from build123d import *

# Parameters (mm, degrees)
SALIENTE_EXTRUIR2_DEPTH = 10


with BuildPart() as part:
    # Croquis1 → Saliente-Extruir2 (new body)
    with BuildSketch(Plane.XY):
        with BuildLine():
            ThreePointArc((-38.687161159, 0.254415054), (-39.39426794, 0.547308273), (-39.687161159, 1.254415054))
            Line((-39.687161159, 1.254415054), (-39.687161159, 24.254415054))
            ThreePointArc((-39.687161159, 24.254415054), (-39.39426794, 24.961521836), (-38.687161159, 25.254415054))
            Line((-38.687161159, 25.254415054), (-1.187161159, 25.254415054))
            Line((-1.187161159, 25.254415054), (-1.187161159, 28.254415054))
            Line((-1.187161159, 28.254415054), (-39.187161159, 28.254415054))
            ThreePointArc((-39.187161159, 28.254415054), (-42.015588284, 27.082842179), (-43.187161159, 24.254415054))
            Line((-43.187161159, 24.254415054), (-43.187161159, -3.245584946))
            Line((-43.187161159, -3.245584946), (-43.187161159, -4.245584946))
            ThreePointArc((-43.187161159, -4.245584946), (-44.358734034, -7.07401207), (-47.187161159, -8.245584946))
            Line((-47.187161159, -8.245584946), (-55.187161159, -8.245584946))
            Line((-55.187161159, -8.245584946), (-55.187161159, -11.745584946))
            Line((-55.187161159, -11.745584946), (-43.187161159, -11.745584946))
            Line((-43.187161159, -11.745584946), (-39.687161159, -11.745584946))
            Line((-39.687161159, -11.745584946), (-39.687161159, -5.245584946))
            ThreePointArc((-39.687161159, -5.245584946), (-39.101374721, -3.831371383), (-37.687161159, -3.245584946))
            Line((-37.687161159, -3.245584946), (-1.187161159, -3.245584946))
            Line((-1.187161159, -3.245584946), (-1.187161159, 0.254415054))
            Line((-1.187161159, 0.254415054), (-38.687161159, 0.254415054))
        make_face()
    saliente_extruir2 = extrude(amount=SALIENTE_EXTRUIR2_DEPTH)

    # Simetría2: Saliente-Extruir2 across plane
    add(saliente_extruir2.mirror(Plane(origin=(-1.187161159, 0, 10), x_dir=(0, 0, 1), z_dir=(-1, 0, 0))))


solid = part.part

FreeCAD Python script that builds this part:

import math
import FreeCAD as App
import Part
import Sketcher
from FreeCAD import Vector
Q = App.Units.Quantity

doc = App.newDocument("Part")
body = doc.addObject("PartDesign::Body", "Body")

sketch1 = body.newObject("Sketcher::SketchObject", "Sketch")
sketch1.AttachmentSupport = (doc.getObject("XY_Plane"), [""])
sketch1.MapMode = "FlatFace"
sketch1.addGeometry([
    Part.ArcOfCircle(Part.Circle(Vector(-38.7, 1.3, 0), Vector(0, 0, 1), 1), math.radians(-180), math.radians(-90)),
    Part.LineSegment(Vector(-39.7, 1.3, 0), Vector(-39.7, 24.3, 0)),
    Part.ArcOfCircle(Part.Circle(Vector(-38.7, 24.3, 0), Vector(0, 0, 1), 1), math.radians(90), math.radians(180)),
    Part.LineSegment(Vector(-38.7, 25.3, 0), Vector(-1.2, 25.3, 0)),
    Part.LineSegment(Vector(-1.2, 25.3, 0), Vector(-1.2, 28.3, 0)),
    Part.LineSegment(Vector(-1.2, 28.3, 0), Vector(-39.2, 28.3, 0)),
    Part.ArcOfCircle(Part.Circle(Vector(-39.2, 24.3, 0), Vector(0, 0, 1), 4), math.radians(90), math.radians(180)),
    Part.LineSegment(Vector(-43.2, 24.3, 0), Vector(-43.2, -4.2, 0)),
    Part.ArcOfCircle(Part.Circle(Vector(-47.2, -4.2, 0), Vector(0, 0, 1), 4), math.radians(-90), math.radians(0)),
    Part.LineSegment(Vector(-47.2, -8.2, 0), Vector(-55.2, -8.2, 0)),
    Part.LineSegment(Vector(-55.2, -8.2, 0), Vector(-55.2, -11.7, 0)),
    Part.LineSegment(Vector(-55.2, -11.7, 0), Vector(-39.7, -11.7, 0)),
    Part.LineSegment(Vector(-39.7, -11.7, 0), Vector(-39.7, -5.2, 0)),
    Part.ArcOfCircle(Part.Circle(Vector(-37.7, -5.2, 0), Vector(0, 0, 1), 2), math.radians(90), math.radians(180)),
    Part.LineSegment(Vector(-37.7, -3.2, 0), Vector(-1.2, -3.2, 0)),
    Part.LineSegment(Vector(-1.2, -3.2, 0), Vector(-1.2, 0.3, 0)),
    Part.LineSegment(Vector(-1.2, 0.3, 0), Vector(-38.7, 0.3, 0)),
], False)
sketch1.addConstraint([
    Sketcher.Constraint("Tangent", 0, 1, 1, 1),
    Sketcher.Constraint("Tangent", 1, 2, 2, 2),
    Sketcher.Constraint("Tangent", 2, 1, 3, 1),
    Sketcher.Constraint("Coincident", 3, 2, 4, 1),
    Sketcher.Constraint("Coincident", 4, 2, 5, 1),
    Sketcher.Constraint("Tangent", 5, 2, 6, 1),
    Sketcher.Constraint("Tangent", 6, 2, 7, 1),
    Sketcher.Constraint("Tangent", 7, 2, 8, 2),
    Sketcher.Constraint("Tangent", 8, 1, 9, 1),
    Sketcher.Constraint("Coincident", 9, 2, 10, 1),
    Sketcher.Constraint("Coincident", 10, 2, 11, 1),
    Sketcher.Constraint("Coincident", 11, 2, 12, 1),
    Sketcher.Constraint("Tangent", 12, 2, 13, 2),
    Sketcher.Constraint("Tangent", 13, 1, 14, 1),
    Sketcher.Constraint("Coincident", 14, 2, 15, 1),
    Sketcher.Constraint("Coincident", 15, 2, 16, 1),
    Sketcher.Constraint("Tangent", 16, 2, 0, 2),
    Sketcher.Constraint("Vertical", 1),
    Sketcher.Constraint("Horizontal", 3),
    Sketcher.Constraint("Vertical", 4),
    Sketcher.Constraint("Horizontal", 5),
    Sketcher.Constraint("Vertical", 7),
    Sketcher.Constraint("Horizontal", 9),
    Sketcher.Constraint("Vertical", 10),
    Sketcher.Constraint("Horizontal", 11),
    Sketcher.Constraint("Vertical", 12),
    Sketcher.Constraint("Horizontal", 14),
    Sketcher.Constraint("Vertical", 15),
    Sketcher.Constraint("Horizontal", 16),
    Sketcher.Constraint("Equal", 0, 2),
    Sketcher.Constraint("Equal", 6, 8),
    Sketcher.Constraint("Horizontal", 2, 3, 6, 3),
    Sketcher.Constraint("Vertical", 1, 2, 11, 2),
    Sketcher.Constraint("Vertical", 4, 2, 14, 2),
    Sketcher.Constraint("Equal", 10, 15),
    Sketcher.Constraint("Radius", 0, Q("1 mm")),
    Sketcher.Constraint("Radius", 6, Q("4 mm")),
    Sketcher.Constraint("Radius", 13, Q("2 mm")),
    Sketcher.Constraint("DistanceX", 5, 2, 5, 1, Q("38 mm")),
    Sketcher.Constraint("DistanceX", 9, 2, 9, 1, Q("8 mm")),
    Sketcher.Constraint("DistanceY", 1, 1, 1, 2, Q("23 mm")),
    Sketcher.Constraint("DistanceX", 3, 1, 3, 2, Q("37.5 mm")),
    Sketcher.Constraint("DistanceY", 7, 2, 7, 1, Q("28.5 mm")),
    Sketcher.Constraint("DistanceY", 10, 2, 10, 1, Q("3.5 mm")),
    Sketcher.Constraint("DistanceX", 0, 3, -1, 1, Q("38.687161 mm")),
    Sketcher.Constraint("DistanceY", -1, 1, 0, 3, Q("1.254415 mm")),
])
pad1 = body.newObject("PartDesign::Pad", "Pad")
pad1.Profile = sketch1
pad1.Length = 10
doc.recompute()

datumplane = body.newObject("PartDesign::Plane", "DatumPlane")
datumplane.AttachmentSupport = (doc.getObject("YZ_Plane"), [""])
datumplane.MapMode = "FlatFace"
datumplane.AttachmentOffset = App.Placement(Vector(0, 0, -1.187161), App.Rotation())
mirrored = body.newObject("PartDesign::Mirrored", "Mirrored")
mirrored.Originals = [pad1]
mirrored.MirrorPlane = (datumplane, [""])
body.Tip = mirrored

doc.recompute()
